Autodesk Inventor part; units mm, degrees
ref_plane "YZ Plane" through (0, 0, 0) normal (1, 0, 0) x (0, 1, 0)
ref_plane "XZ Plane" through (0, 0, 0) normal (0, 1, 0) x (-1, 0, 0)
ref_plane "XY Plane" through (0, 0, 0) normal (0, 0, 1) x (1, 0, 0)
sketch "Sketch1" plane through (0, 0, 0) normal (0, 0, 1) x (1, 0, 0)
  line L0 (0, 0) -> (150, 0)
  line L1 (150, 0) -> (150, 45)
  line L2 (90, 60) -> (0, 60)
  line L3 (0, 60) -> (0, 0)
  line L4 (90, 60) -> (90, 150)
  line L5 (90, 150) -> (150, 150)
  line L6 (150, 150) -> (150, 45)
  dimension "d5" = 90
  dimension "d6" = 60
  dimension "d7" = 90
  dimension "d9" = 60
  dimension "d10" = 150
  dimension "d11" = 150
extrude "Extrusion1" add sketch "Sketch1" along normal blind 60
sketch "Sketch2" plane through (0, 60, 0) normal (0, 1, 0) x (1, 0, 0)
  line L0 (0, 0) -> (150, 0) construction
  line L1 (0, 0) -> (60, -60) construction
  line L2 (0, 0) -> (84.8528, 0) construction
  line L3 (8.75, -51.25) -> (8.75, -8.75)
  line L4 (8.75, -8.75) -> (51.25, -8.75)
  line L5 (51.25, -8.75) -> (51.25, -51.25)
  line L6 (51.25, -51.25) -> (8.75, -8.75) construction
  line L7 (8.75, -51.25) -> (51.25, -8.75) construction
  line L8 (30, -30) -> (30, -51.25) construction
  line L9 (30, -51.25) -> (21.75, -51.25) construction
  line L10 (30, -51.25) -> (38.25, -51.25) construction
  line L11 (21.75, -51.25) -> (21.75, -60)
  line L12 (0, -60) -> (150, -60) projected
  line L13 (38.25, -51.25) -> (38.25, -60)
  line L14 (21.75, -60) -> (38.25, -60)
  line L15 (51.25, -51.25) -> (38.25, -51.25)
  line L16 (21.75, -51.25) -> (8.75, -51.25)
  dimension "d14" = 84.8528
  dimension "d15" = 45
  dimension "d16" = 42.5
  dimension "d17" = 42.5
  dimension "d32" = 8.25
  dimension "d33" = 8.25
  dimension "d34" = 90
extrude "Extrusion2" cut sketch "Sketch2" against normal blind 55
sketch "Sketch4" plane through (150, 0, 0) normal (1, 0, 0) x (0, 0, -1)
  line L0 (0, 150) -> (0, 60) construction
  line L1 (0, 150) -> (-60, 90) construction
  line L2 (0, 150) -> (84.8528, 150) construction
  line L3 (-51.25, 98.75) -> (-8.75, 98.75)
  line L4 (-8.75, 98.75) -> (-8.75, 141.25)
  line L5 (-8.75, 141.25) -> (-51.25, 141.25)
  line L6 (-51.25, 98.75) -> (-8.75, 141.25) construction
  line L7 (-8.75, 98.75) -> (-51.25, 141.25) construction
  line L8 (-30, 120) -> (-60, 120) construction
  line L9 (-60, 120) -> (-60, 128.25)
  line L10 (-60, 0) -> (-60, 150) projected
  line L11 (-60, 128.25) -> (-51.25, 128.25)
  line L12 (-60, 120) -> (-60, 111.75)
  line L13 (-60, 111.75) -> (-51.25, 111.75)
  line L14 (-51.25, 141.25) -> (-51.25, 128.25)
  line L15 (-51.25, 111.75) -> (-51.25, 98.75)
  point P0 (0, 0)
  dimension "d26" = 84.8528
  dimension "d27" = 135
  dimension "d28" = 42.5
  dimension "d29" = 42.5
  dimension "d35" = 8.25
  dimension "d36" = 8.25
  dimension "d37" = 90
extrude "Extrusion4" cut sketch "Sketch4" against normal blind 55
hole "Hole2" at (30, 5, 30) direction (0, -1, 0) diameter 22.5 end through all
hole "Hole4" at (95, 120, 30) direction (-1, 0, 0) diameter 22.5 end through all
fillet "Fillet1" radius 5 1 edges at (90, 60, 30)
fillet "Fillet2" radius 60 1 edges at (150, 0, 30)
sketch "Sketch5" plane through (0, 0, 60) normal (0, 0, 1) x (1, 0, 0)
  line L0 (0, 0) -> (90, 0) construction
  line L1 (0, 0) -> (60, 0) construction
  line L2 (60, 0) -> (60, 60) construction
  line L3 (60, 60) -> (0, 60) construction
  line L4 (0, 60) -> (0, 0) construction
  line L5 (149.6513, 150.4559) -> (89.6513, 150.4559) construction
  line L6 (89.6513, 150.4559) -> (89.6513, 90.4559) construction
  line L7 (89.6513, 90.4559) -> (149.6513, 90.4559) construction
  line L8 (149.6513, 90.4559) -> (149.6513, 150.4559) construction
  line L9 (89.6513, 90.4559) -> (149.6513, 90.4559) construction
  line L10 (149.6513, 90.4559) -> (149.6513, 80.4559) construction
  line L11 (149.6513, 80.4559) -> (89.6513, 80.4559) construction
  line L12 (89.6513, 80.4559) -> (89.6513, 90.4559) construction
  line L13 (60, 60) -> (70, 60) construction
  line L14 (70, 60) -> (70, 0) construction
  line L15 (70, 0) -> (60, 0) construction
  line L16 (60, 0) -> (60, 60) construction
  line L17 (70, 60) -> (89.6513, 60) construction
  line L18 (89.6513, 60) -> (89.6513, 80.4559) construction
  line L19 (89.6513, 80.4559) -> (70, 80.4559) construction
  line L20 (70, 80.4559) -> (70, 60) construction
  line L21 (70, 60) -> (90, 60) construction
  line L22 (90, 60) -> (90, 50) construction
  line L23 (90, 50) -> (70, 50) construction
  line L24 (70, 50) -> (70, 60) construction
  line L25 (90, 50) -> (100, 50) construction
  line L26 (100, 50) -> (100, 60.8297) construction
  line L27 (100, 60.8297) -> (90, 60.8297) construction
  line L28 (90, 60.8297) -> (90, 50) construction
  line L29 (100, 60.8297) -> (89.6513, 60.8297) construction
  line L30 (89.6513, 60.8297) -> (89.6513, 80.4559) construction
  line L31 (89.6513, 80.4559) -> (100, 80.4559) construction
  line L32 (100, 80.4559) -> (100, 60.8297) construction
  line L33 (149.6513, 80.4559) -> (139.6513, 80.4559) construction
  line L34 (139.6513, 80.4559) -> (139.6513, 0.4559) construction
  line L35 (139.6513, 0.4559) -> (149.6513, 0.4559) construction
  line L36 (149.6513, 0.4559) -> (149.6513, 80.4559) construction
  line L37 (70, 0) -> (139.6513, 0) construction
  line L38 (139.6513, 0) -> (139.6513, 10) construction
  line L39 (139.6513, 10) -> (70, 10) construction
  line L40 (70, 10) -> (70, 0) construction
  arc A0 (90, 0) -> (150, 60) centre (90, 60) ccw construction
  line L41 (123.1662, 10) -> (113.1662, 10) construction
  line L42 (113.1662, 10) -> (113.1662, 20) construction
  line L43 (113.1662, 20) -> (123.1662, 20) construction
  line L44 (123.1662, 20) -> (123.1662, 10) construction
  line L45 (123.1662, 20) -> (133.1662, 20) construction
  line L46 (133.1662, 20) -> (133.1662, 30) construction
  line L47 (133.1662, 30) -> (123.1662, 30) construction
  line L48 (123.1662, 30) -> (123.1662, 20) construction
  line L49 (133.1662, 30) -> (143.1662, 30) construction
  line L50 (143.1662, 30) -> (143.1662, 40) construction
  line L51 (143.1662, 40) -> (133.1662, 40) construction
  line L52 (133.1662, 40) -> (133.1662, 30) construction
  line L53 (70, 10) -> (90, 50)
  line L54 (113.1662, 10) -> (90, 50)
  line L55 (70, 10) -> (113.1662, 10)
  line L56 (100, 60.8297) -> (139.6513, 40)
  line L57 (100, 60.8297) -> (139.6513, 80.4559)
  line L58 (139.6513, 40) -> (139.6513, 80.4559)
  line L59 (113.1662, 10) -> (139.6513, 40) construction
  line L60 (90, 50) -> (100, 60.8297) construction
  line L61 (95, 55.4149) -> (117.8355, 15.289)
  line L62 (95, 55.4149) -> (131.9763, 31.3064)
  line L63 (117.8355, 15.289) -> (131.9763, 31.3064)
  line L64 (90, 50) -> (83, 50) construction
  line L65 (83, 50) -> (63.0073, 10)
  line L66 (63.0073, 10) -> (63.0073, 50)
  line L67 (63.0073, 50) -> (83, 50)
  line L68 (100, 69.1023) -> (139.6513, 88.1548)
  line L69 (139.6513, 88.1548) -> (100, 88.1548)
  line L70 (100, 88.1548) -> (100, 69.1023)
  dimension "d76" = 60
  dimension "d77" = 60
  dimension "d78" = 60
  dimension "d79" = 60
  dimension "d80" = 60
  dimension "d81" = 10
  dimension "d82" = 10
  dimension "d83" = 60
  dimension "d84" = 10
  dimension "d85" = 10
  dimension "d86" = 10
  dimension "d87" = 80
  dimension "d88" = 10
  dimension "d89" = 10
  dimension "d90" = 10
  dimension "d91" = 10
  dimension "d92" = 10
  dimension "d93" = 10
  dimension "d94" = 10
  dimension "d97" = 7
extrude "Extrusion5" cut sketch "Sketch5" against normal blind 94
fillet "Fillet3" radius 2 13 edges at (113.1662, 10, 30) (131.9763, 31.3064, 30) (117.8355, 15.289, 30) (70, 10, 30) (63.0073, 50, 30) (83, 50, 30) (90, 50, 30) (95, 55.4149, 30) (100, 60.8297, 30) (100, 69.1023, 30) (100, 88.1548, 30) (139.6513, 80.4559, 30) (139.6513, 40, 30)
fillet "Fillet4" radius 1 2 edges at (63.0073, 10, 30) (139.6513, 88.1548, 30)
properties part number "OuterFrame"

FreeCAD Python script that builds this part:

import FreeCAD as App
import Part
import Sketcher


def edges_at(feature, points):
    """Names of the edges that pass closest to the given points."""
    edges = feature.Shape.Edges
    near = lambda p: min(range(len(edges)), key=lambda i: edges[i].distToShape(Part.Vertex(*p))[0])
    return sorted({f"Edge{near(p) + 1}" for p in points})


def add_polygon(sketch, points):
    """Adds a closed chain of lines whose ends are joined by coincident constraints."""
    first, n = sketch.GeometryCount, len(points)
    for a, b in zip(points, points[1:] + points[:1]):
        sketch.addGeometry(Part.LineSegment(App.Vector(*a, 0), App.Vector(*b, 0)), False)
    for i in range(n):
        sketch.addConstraint(Sketcher.Constraint("Coincident", first + i, 2, first + (i + 1) % n, 1))

doc = App.newDocument("Part")
body = doc.addObject("PartDesign::Body", "Body")

# Sketch on XY plane
sketch1 = body.newObject("Sketcher::SketchObject", "Sketch")
sketch1.AttachmentSupport = (doc.getObject("XY_Plane"), [""])
sketch1.MapMode = "FlatFace"
add_polygon(sketch1, [(0, 60), (0, 0), (150, 0), (150, 150), (90, 150), (90, 60)])  # lines 0-5
sketch1.addConstraint([
    Sketcher.Constraint("Vertical", 0),
    Sketcher.Constraint("Horizontal", 1),
    Sketcher.Constraint("Vertical", 2),
    Sketcher.Constraint("Horizontal", 3),
    Sketcher.Constraint("Vertical", 4),
    Sketcher.Constraint("Horizontal", 5),
    Sketcher.Constraint("Coincident", 0, 2, -1, 1),
    Sketcher.Constraint("Equal", 3, 0),
    Sketcher.Constraint("Equal", 1, 2),
    Sketcher.Constraint("DistanceX", 1, 1, 1, 2, 150.0),
    Sketcher.Constraint("DistanceX", 3, 2, 3, 1, 60.0),
])
pad1 = body.newObject("PartDesign::Pad", "Pad")
pad1.Profile = sketch1
pad1.Length = 60

# Sketch on XZ plane
sketch2 = body.newObject("Sketcher::SketchObject", "Sketch001")
sketch2.AttachmentSupport = (doc.getObject("XZ_Plane"), [""])
sketch2.MapMode = "FlatFace"
sketch2.AttachmentOffset = App.Placement(App.Vector(0, 0, -60), App.Rotation())
add_polygon(sketch2, [(9, 9), (9, 51), (22, 51), (22, 60), (38, 60), (38, 51), (51, 51), (51, 9)])  # lines 0-7
sketch2.addConstraint([
    Sketcher.Constraint("Vertical", 0),
    Sketcher.Constraint("Horizontal", 1),
    Sketcher.Constraint("Vertical", 2),
    Sketcher.Constraint("Horizontal", 3),
    Sketcher.Constraint("Vertical", 4),
    Sketcher.Constraint("Horizontal", 5),
    Sketcher.Constraint("Vertical", 6),
    Sketcher.Constraint("Horizontal", 7),
    Sketcher.Constraint("Horizontal", 1, 2, 4, 2),
    Sketcher.Constraint("Equal", 1, 5),
    Sketcher.Constraint("Equal", 7, 0),
    Sketcher.Constraint("DistanceX", 7, 2, 7, 1, 42.5),
    Sketcher.Constraint("DistanceX", 1, 1, 1, 2, 13.0),
    Sketcher.Constraint("DistanceY", -1, 1, 2, 2, 60.0),
    Sketcher.Constraint("DistanceY", 2, 1, 2, 2, 8.75),
    Sketcher.Constraint("DistanceX", -1, 1, 0, 2, 8.75),
])
pocket1 = body.newObject("PartDesign::Pocket", "Pocket")
pocket1.Profile = sketch2
pocket1.Length = 55
pocket1.Reversed = True

# Sketch on YZ plane
sketch3 = body.newObject("Sketcher::SketchObject", "Sketch002")
sketch3.AttachmentSupport = (doc.getObject("YZ_Plane"), [""])
sketch3.MapMode = "FlatFace"
sketch3.AttachmentOffset = App.Placement(App.Vector(0, 0, 150), App.Rotation())
add_polygon(sketch3, [(112, 51), (99, 51), (99, 9), (141, 9), (141, 51), (128, 51), (128, 60), (112, 60)])  # lines 0-7
sketch3.addConstraint([
    Sketcher.Constraint("Horizontal", 0),
    Sketcher.Constraint("Vertical", 1),
    Sketcher.Constraint("Horizontal", 2),
    Sketcher.Constraint("Vertical", 3),
    Sketcher.Constraint("Horizontal", 4),
    Sketcher.Constraint("Vertical", 5),
    Sketcher.Constraint("Horizontal", 6),
    Sketcher.Constraint("Vertical", 7),
    Sketcher.Constraint("Horizontal", 0, 2, 3, 2),
    Sketcher.Constraint("Equal", 0, 4),
    Sketcher.Constraint("Equal", 2, 1),
    Sketcher.Constraint("DistanceX", 2, 1, 2, 2, 42.5),
    Sketcher.Constraint("DistanceX", 0, 2, 0, 1, 13.0),
    Sketcher.Constraint("DistanceY", -1, 1, 5, 2, 60.0),
    Sketcher.Constraint("DistanceY", 5, 1, 5, 2, 8.75),
    Sketcher.Constraint("DistanceX", -1, 1, 0, 2, 98.75),
])
pocket2 = body.newObject("PartDesign::Pocket", "Pocket001")
pocket2.Profile = sketch3
pocket2.Length = 55

# Sketch on XZ plane
sketch4 = body.newObject("Sketcher::SketchObject", "Sketch003")
sketch4.AttachmentSupport = (doc.getObject("XZ_Plane"), [""])
sketch4.MapMode = "FlatFace"
sketch4.AttachmentOffset = App.Placement(App.Vector(0, 0, -5), App.Rotation())
sketch4.addGeometry(Part.Circle(App.Vector(30, 30, 0), App.Vector(0, 0, 1), 11), False)
sketch4.addConstraint([
    Sketcher.Constraint("Diameter", 0, 22.5),
    Sketcher.Constraint("DistanceX", -1, 1, 0, 3, 30.0),
    Sketcher.Constraint("DistanceY", -1, 1, 0, 3, 30.0),
])
doc.recompute()
hole = body.newObject("PartDesign::Hole", "Hole")
hole.Profile = sketch4
hole.ThreadType = "None"
hole.Diameter = 22.5
hole.DepthType = "ThroughAll"
hole.Reversed = True

# Sketch on YZ plane
sketch5 = body.newObject("Sketcher::SketchObject", "Sketch004")
sketch5.AttachmentSupport = (doc.getObject("YZ_Plane"), [""])
sketch5.MapMode = "FlatFace"
sketch5.AttachmentOffset = App.Placement(App.Vector(0, 0, 95), App.Rotation())
sketch5.addGeometry(Part.Circle(App.Vector(120, 30, 0), App.Vector(0, 0, 1), 11), False)
sketch5.addConstraint([
    Sketcher.Constraint("Diameter", 0, 22.5),
    Sketcher.Constraint("DistanceX", -1, 1, 0, 3, 120.0),
    Sketcher.Constraint("DistanceY", -1, 1, 0, 3, 30.0),
])
doc.recompute()
hole2 = body.newObject("PartDesign::Hole", "Hole001")
hole2.Profile = sketch5
hole2.ThreadType = "None"
hole2.Diameter = 22.5
hole2.DepthType = "ThroughAll"
doc.recompute()

fillet = body.newObject("PartDesign::Fillet", "Fillet")
fillet.Base = (hole2, edges_at(hole2, [(90, 60, 30)]))
fillet.Radius = 5
doc.recompute()

fillet2 = body.newObject("PartDesign::Fillet", "Fillet001")
fillet2.Base = (fillet, edges_at(fillet, [(150, 0, 30)]))
fillet2.Radius = 60

# Sketch on XY plane
sketch6 = body.newObject("Sketcher::SketchObject", "Sketch005")
sketch6.AttachmentSupport = (doc.getObject("XY_Plane"), [""])
sketch6.MapMode = "FlatFace"
sketch6.AttachmentOffset = App.Placement(App.Vector(0, 0, 60), App.Rotation())
add_polygon(sketch6, [(90, 50), (70, 10), (113.1662, 10)])  # lines 0-2
add_polygon(sketch6, [(139.6513, 80.4559), (100, 60.8297), (139.6513, 40)])  # lines 3-5
add_polygon(sketch6, [(131.9763, 31.3064), (95, 55.4149), (117.8355, 15.289)])  # lines 6-8
add_polygon(sketch6, [(63.0073, 10), (83, 50), (63.0073, 50)])  # lines 9-11
add_polygon(sketch6, [(100, 88.1548), (100, 69.1023), (139.6513, 88.1548)])  # lines 12-14
sketch6.addConstraint([
    Sketcher.Constraint("Horizontal", 1),
    Sketcher.Constraint("Vertical", 5),
    Sketcher.Constraint("Horizontal", 10),
    Sketcher.Constraint("Vertical", 11),
    Sketcher.Constraint("Vertical", 12),
    Sketcher.Constraint("Horizontal", 14),
    Sketcher.Constraint("DistanceY", -1, 1, 0, 2, 10.0),
    Sketcher.Constraint("DistanceY", -1, 1, 11, 2, 10.0),
    Sketcher.Constraint("DistanceX", 2, 2, 3, 2, 10.0),
    Sketcher.Constraint("DistanceY", 4, 2, 2, 2, 10.0),
    Sketcher.Constraint("DistanceX", 9, 2, 2, 2, 7.0),
    Sketcher.Constraint("DistanceX", 2, 2, 12, 2, 10.0),
    Sketcher.Constraint("DistanceY", 11, 2, 11, 1, 40.0),
    Sketcher.Constraint("DistanceX", -1, 1, 0, 2, 70.0),
    Sketcher.Constraint("DistanceX", -1, 1, 2, 2, 90.0),
    Sketcher.Constraint("DistanceY", -1, 1, 2, 2, 50.0),
    Sketcher.Constraint("DistanceX", -1, 1, 6, 2, 95.0),
    Sketcher.Constraint("DistanceY", 5, 1, 5, 2, 40.456),
    Sketcher.Constraint("DistanceX", 1, 2, 8, 2, 18.81),
    Sketcher.Constraint("DistanceY", 6, 2, 13, 2, 32.74),
    Sketcher.Constraint("Distance", 9, 44.718),
    Sketcher.Constraint("DistanceX", 1, 1, 1, 2, 43.1662),
    Sketcher.Constraint("DistanceX", 14, 2, 14, 1, 39.6513),
    Sketcher.Constraint("DistanceY", 12, 2, 12, 1, 19.0525),
    Sketcher.Constraint("DistanceY", -1, 1, 6, 2, 55.415),
    Sketcher.Constraint("DistanceY", -1, 1, 7, 2, 15.289),
    Sketcher.Constraint("DistanceX", 1, 2, 4, 2, 26.485),
    Sketcher.Constraint("DistanceY", 3, 2, 13, 2, 27.325),
    Sketcher.Constraint("Distance", 6, 44.1414),
    Sketcher.Constraint("Distance", 7, 46.1687),
])
pocket3 = body.newObject("PartDesign::Pocket", "Pocket002")
pocket3.Profile = sketch6
pocket3.Length = 94
doc.recompute()

fillet3 = body.newObject("PartDesign::Fillet", "Fillet002")
fillet3.Base = (pocket3, edges_at(pocket3, [
    (113.166, 10, 30),
    (131.976, 31.306, 30),
    (117.835, 15.289, 30),
    (70, 10, 30),
    (63.007, 50, 30),
    (83, 50, 30),
    (90, 50, 30),
    (95, 55.415, 30),
    (100, 60.83, 30),
    (100, 69.102, 30),
    (100, 88.155, 30),
    (139.651, 80.456, 30),
    (139.651, 40, 30),
]))
fillet3.Radius = 2
doc.recompute()

fillet4 = body.newObject("PartDesign::Fillet", "Fillet003")
fillet4.Base = (fillet3, edges_at(fillet3, [(63.007, 10, 30), (139.651, 88.155, 30)]))
fillet4.Radius = 1

doc.recompute()
